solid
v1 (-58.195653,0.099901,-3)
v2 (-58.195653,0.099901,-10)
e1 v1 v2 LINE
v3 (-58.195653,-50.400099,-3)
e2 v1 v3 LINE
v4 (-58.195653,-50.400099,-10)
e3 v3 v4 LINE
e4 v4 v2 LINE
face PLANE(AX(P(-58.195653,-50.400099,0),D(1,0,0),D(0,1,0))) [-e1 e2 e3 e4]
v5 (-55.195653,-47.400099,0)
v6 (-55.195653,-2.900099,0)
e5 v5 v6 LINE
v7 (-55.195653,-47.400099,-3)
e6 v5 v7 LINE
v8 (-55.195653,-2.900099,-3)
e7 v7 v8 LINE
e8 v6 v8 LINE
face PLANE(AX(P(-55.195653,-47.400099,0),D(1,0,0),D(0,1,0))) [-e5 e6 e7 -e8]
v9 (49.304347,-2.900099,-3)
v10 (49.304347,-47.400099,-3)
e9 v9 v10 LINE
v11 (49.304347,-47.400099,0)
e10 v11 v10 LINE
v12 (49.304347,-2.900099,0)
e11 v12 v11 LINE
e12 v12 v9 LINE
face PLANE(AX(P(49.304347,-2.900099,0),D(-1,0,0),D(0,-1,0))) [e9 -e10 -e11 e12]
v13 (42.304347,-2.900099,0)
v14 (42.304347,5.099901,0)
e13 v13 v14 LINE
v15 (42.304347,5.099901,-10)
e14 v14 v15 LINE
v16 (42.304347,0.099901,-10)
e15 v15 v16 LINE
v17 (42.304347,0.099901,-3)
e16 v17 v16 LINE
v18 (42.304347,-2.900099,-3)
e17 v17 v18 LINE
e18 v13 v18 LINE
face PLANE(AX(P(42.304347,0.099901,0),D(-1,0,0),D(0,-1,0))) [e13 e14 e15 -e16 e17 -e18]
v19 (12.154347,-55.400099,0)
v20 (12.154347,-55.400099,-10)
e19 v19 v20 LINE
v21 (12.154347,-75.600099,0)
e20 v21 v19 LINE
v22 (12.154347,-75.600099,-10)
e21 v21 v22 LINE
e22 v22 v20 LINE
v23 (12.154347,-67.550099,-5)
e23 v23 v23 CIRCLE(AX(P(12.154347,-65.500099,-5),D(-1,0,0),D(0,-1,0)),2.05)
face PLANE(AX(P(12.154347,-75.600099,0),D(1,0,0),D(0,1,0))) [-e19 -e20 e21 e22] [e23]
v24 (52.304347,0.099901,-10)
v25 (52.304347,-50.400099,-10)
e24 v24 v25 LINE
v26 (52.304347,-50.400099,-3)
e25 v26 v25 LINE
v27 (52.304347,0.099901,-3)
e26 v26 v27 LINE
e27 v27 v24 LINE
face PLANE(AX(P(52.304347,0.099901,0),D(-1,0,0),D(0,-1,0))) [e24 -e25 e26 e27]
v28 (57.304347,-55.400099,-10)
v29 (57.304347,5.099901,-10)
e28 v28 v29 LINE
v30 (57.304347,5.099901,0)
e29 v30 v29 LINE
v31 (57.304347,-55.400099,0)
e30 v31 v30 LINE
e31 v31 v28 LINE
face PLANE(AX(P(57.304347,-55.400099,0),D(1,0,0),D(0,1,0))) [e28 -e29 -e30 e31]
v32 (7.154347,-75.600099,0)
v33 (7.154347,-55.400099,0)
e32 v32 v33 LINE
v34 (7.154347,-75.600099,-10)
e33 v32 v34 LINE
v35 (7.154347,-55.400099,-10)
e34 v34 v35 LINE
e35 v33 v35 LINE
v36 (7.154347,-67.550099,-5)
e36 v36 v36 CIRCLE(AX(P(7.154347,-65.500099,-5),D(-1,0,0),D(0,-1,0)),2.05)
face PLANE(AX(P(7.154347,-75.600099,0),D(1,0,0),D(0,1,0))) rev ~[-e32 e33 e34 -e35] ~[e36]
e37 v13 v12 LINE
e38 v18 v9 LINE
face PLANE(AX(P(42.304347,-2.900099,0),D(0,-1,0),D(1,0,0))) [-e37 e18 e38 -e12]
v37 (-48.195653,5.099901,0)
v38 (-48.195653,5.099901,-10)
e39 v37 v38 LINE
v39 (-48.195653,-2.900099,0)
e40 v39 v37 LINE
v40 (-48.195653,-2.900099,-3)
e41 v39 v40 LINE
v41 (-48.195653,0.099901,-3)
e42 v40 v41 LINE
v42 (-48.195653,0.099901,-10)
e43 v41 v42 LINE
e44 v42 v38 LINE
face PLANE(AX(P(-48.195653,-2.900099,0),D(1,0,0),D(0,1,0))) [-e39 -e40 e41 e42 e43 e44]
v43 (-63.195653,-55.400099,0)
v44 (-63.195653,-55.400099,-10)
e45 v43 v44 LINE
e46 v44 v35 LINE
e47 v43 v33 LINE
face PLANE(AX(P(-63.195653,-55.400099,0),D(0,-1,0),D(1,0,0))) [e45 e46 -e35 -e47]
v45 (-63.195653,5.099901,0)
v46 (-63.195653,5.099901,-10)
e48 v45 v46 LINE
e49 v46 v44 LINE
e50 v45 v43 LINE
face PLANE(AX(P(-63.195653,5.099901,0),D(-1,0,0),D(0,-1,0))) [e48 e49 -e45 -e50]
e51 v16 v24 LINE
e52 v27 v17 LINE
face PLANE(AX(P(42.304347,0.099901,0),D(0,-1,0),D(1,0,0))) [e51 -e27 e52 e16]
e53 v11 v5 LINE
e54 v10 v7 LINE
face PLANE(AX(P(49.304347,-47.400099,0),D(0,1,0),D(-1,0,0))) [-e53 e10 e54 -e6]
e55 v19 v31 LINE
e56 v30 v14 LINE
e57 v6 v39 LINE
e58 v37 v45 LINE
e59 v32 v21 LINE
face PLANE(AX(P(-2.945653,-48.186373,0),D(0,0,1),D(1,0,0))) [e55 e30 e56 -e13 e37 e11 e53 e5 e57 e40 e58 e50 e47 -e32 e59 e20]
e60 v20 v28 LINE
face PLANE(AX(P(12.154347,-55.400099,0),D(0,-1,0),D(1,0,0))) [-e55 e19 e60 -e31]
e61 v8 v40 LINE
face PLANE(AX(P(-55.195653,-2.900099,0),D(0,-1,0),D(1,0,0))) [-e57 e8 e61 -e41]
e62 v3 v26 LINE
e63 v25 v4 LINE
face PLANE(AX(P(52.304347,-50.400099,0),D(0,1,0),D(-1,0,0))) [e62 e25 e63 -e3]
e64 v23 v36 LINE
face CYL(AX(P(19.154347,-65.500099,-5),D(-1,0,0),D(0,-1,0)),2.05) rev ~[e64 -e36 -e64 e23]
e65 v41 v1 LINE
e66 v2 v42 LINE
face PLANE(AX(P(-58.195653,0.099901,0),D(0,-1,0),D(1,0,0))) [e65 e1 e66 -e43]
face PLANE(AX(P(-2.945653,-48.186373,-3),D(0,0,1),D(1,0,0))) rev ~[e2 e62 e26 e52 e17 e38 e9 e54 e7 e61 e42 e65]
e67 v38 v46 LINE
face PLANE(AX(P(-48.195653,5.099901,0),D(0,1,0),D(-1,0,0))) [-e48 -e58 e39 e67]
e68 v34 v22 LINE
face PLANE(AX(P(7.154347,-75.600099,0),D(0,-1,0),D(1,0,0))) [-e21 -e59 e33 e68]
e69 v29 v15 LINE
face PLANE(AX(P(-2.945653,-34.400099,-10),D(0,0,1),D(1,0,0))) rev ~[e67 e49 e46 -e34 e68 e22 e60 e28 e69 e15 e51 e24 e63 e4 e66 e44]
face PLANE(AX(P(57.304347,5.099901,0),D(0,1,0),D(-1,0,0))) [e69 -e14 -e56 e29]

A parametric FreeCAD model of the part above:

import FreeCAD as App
import Part
import Sketcher
from FreeCAD import Vector
Q = App.Units.Quantity


def add_polygon(sketch, points):
    """Adds a closed chain of lines whose ends are joined by coincident constraints."""
    first, n = sketch.GeometryCount, len(points)
    for a, b in zip(points, points[1:] + points[:1]):
        sketch.addGeometry(Part.LineSegment(App.Vector(*a, 0), App.Vector(*b, 0)), False)
    for i in range(n):
        sketch.addConstraint(Sketcher.Constraint("Coincident", first + i, 2, first + (i + 1) % n, 1))

doc = App.newDocument("Part")
body = doc.addObject("PartDesign::Body", "Body")

sketch1 = doc.addObject("Sketcher::SketchObject", "Sketch")
body.addObject(sketch1)
sketch1.AttachmentSupport = (doc.XY_Plane, [""])
sketch1.MapMode = "FlatFace"
add_polygon(sketch1, [(-58.2, 0.1), (-48.2, 0.1), (-48.2, 5.1), (-63.2, 5.1), (-63.2, -55.4), (7.2, -55.4), (7.2, -75.6), (12.2, -75.6), (12.2, -55.4), (57.3, -55.4), (57.3, 5.1), (42.3, 5.1), (42.3, 0.1), (52.3, 0.1), (52.3, -50.4), (-58.2, -50.4)])
sketch1.addConstraint(Sketcher.Constraint("Horizontal", 0))
sketch1.addConstraint(Sketcher.Constraint("Vertical", 1))
sketch1.addConstraint(Sketcher.Constraint("Horizontal", 2))
sketch1.addConstraint(Sketcher.Constraint("Vertical", 3))
sketch1.addConstraint(Sketcher.Constraint("Horizontal", 4))
sketch1.addConstraint(Sketcher.Constraint("Vertical", 5))
sketch1.addConstraint(Sketcher.Constraint("Horizontal", 6))
sketch1.addConstraint(Sketcher.Constraint("Vertical", 7))
sketch1.addConstraint(Sketcher.Constraint("Horizontal", 8))
sketch1.addConstraint(Sketcher.Constraint("Vertical", 9))
sketch1.addConstraint(Sketcher.Constraint("Horizontal", 10))
sketch1.addConstraint(Sketcher.Constraint("Vertical", 11))
sketch1.addConstraint(Sketcher.Constraint("Horizontal", 12))
sketch1.addConstraint(Sketcher.Constraint("Vertical", 13))
sketch1.addConstraint(Sketcher.Constraint("Horizontal", 14))
sketch1.addConstraint(Sketcher.Constraint("Vertical", 15))
sketch1.addConstraint(Sketcher.Constraint("Horizontal", 4, 2, 7, 2))
sketch1.addConstraint(Sketcher.Constraint("Horizontal", 2, 2, 9, 2))
sketch1.addConstraint(Sketcher.Constraint("Horizontal", 0, 2, 11, 2))
sketch1.addConstraint(Sketcher.Constraint("Equal", 2, 10))
sketch1.addConstraint(Sketcher.Constraint("Equal", 0, 12))
sketch1.addConstraint(Sketcher.Constraint("Equal", 6, 1))
sketch1.addConstraint(Sketcher.Constraint("DistanceX", 0, 1, 0, 2, Q("10 mm")))
sketch1.addConstraint(Sketcher.Constraint("DistanceX", 2, 2, 2, 1, Q("15 mm")))
sketch1.addConstraint(Sketcher.Constraint("DistanceX", 6, 1, 6, 2, Q("5 mm")))
sketch1.addConstraint(Sketcher.Constraint("DistanceX", 14, 2, 14, 1, Q("110.5 mm")))
sketch1.addConstraint(Sketcher.Constraint("DistanceY", 3, 2, 3, 1, Q("60.5 mm")))
sketch1.addConstraint(Sketcher.Constraint("DistanceY", 5, 2, 5, 1, Q("20.2 mm")))
sketch1.addConstraint(Sketcher.Constraint("DistanceY", 13, 2, 13, 1, Q("50.5 mm")))
sketch1.addConstraint(Sketcher.Constraint("DistanceX", 4, 1, 4, 2, Q("70.35 mm")))
sketch1.addConstraint(Sketcher.Constraint("DistanceY", -1, 1, 0, 2, Q("0.099901 mm")))
sketch1.addConstraint(Sketcher.Constraint("DistanceX", 0, 2, -1, 1, Q("48.195653 mm")))
pad1 = doc.addObject("PartDesign::Pad", "Pad")
body.addObject(pad1)
pad1.Profile = sketch1
pad1.Length = 10
pad1.Reversed = True

sketch2 = doc.addObject("Sketcher::SketchObject", "Sketch001")
body.addObject(sketch2)
sketch2.AttachmentSupport = (doc.YZ_Plane, [""])
sketch2.MapMode = "FlatFace"
sketch2.AttachmentOffset = App.Placement(Vector(0, 0, 12.154347), App.Rotation())
sketch2.addGeometry(Part.Circle(Vector(-65.5, -5, 0), Vector(0, 0, 1), 2), False)
sketch2.addConstraint(Sketcher.Constraint("Diameter", 0, Q("4.1 mm")))
sketch2.addConstraint(Sketcher.Constraint("DistanceY", 0, 3, -1, 1, Q("5 mm")))
sketch2.addConstraint(Sketcher.Constraint("DistanceX", 0, 3, -1, 1, Q("65.500099 mm")))
doc.recompute()
hole = doc.addObject("PartDesign::Hole", "Hole")
body.addObject(hole)
hole.Profile = sketch2
hole.ThreadType = "None"
hole.Diameter = 4.1
hole.DepthType = "Dimension"
hole.Depth = 7
hole.DrillPoint = "Angled"
hole.DrillPointAngle = 118

sketch3 = doc.addObject("Sketcher::SketchObject", "Sketch002")
body.addObject(sketch3)
sketch3.AttachmentSupport = (doc.XY_Plane, [""])
sketch3.MapMode = "FlatFace"
add_polygon(sketch3, [(-58.2, -50.4), (52.3, -50.4), (52.3, 0.1), (42.3, 0.1), (42.3, -2.9), (49.3, -2.9), (49.3, -47.4), (-55.2, -47.4), (-55.2, -2.9), (-48.2, -2.9), (-48.2, 0.1), (-58.2, 0.1)])
sketch3.addConstraint(Sketcher.Constraint("Horizontal", 0))
sketch3.addConstraint(Sketcher.Constraint("Vertical", 1))
sketch3.addConstraint(Sketcher.Constraint("Horizontal", 2))
sketch3.addConstraint(Sketcher.Constraint("Vertical", 3))
sketch3.addConstraint(Sketcher.Constraint("Horizontal", 4))
sketch3.addConstraint(Sketcher.Constraint("Vertical", 5))
sketch3.addConstraint(Sketcher.Constraint("Horizontal", 6))
sketch3.addConstraint(Sketcher.Constraint("Vertical", 7))
sketch3.addConstraint(Sketcher.Constraint("Horizontal", 8))
sketch3.addConstraint(Sketcher.Constraint("Vertical", 9))
sketch3.addConstraint(Sketcher.Constraint("Horizontal", 10))
sketch3.addConstraint(Sketcher.Constraint("Vertical", 11))
sketch3.addConstraint(Sketcher.Constraint("Horizontal", 4, 2, 7, 2))
sketch3.addConstraint(Sketcher.Constraint("Horizontal", 2, 2, 9, 2))
sketch3.addConstraint(Sketcher.Constraint("Equal", 4, 8))
sketch3.addConstraint(Sketcher.Constraint("Equal", 2, 10))
sketch3.addConstraint(Sketcher.Constraint("DistanceX", 2, 2, 2, 1, Q("10 mm")))
sketch3.addConstraint(Sketcher.Constraint("DistanceX", 4, 1, 4, 2, Q("7 mm")))
sketch3.addConstraint(Sketcher.Constraint("DistanceY", 3, 2, 3, 1, Q("3 mm")))
sketch3.addConstraint(Sketcher.Constraint("DistanceX", 0, 1, 0, 2, Q("110.5 mm")))
sketch3.addConstraint(Sketcher.Constraint("DistanceY", 1, 1, 1, 2, Q("50.5 mm")))
sketch3.addConstraint(Sketcher.Constraint("DistanceY", 5, 2, 5, 1, Q("44.5 mm")))
sketch3.addConstraint(Sketcher.Constraint("DistanceY", 0, 2, -1, 1, Q("50.400099 mm")))
sketch3.addConstraint(Sketcher.Constraint("DistanceX", -1, 1, 0, 2, Q("52.304347 mm")))
pad2 = doc.addObject("PartDesign::Pad", "Pad001")
body.addObject(pad2)
pad2.Profile = sketch3
pad2.Length = 3
pad2.Reversed = True

doc.recompute()
